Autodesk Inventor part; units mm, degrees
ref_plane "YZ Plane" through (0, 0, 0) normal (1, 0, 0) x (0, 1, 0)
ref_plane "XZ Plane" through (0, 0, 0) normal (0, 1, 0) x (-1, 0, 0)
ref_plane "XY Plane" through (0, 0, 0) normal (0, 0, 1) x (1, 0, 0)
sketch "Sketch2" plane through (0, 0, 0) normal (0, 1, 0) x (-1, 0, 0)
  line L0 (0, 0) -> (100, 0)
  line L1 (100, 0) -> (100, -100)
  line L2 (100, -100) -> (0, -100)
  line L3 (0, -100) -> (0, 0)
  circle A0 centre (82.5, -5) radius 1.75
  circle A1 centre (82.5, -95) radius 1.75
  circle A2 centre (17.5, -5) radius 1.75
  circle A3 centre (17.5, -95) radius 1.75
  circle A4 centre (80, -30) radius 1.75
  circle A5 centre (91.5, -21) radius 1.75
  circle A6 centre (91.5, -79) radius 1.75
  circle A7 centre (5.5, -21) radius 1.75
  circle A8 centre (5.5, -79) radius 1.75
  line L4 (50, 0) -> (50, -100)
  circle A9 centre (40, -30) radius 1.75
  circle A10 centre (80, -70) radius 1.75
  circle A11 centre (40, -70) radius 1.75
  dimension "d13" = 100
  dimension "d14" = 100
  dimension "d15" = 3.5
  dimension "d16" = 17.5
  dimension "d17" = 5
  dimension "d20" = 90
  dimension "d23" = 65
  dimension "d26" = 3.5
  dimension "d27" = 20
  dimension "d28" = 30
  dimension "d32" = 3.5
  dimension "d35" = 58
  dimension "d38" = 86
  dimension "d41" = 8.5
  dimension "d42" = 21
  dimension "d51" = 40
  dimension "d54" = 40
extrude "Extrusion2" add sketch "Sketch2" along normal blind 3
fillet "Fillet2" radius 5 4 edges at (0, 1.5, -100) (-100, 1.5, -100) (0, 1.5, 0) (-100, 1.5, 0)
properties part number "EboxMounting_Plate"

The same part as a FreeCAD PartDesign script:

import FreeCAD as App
import Part
import Sketcher


def edges_at(feature, points):
    """Names of the edges that pass closest to the given points."""
    edges = feature.Shape.Edges
    near = lambda p: min(range(len(edges)), key=lambda i: edges[i].distToShape(Part.Vertex(*p))[0])
    return sorted({f"Edge{near(p) + 1}" for p in points})


def add_polygon(sketch, points):
    """Adds a closed chain of lines whose ends are joined by coincident constraints."""
    first, n = sketch.GeometryCount, len(points)
    for a, b in zip(points, points[1:] + points[:1]):
        sketch.addGeometry(Part.LineSegment(App.Vector(*a, 0), App.Vector(*b, 0)), False)
    for i in range(n):
        sketch.addConstraint(Sketcher.Constraint("Coincident", first + i, 2, first + (i + 1) % n, 1))

doc = App.newDocument("Part")
body = doc.addObject("PartDesign::Body", "Body")

# Sketch on XZ plane
sketch1 = body.newObject("Sketcher::SketchObject", "Sketch")
sketch1.AttachmentSupport = (doc.getObject("XZ_Plane"), [""])
sketch1.MapMode = "FlatFace"
add_polygon(sketch1, [(0, 0), (0, -100), (-100, -100), (-100, 0)])  # lines 0-3
sketch1.addGeometry(Part.Circle(App.Vector(-17.5, -95, 0), App.Vector(0, 0, 1), 1.8), False)  # 4
sketch1.addGeometry(Part.Circle(App.Vector(-5.5, -79, 0), App.Vector(0, 0, 1), 1.8), False)  # 5
sketch1.addGeometry(Part.Circle(App.Vector(-40, -70, 0), App.Vector(0, 0, 1), 1.8), False)  # 6
sketch1.addGeometry(Part.Circle(App.Vector(-40, -30, 0), App.Vector(0, 0, 1), 1.8), False)  # 7
sketch1.addGeometry(Part.Circle(App.Vector(-5.5, -21, 0), App.Vector(0, 0, 1), 1.8), False)  # 8
sketch1.addGeometry(Part.Circle(App.Vector(-17.5, -5, 0), App.Vector(0, 0, 1), 1.8), False)  # 9
sketch1.addGeometry(Part.Circle(App.Vector(-82.5, -5, 0), App.Vector(0, 0, 1), 1.8), False)  # 10
sketch1.addGeometry(Part.Circle(App.Vector(-82.5, -95, 0), App.Vector(0, 0, 1), 1.8), False)  # 11
sketch1.addGeometry(Part.Circle(App.Vector(-91.5, -79, 0), App.Vector(0, 0, 1), 1.8), False)  # 12
sketch1.addGeometry(Part.Circle(App.Vector(-80, -70, 0), App.Vector(0, 0, 1), 1.8), False)  # 13
sketch1.addGeometry(Part.Circle(App.Vector(-80, -30, 0), App.Vector(0, 0, 1), 1.8), False)  # 14
sketch1.addGeometry(Part.Circle(App.Vector(-91.5, -21, 0), App.Vector(0, 0, 1), 1.8), False)  # 15
sketch1.addConstraint(Sketcher.Constraint("Vertical", 0))
sketch1.addConstraint(Sketcher.Constraint("Horizontal", 1))
sketch1.addConstraint(Sketcher.Constraint("Vertical", 2))
sketch1.addConstraint(Sketcher.Constraint("Horizontal", 3))
sketch1.addConstraint(Sketcher.Constraint("Coincident", 3, 2, -1, 1))
sketch1.addConstraint(Sketcher.Constraint("Equal", 4, 5))
sketch1.addConstraint(Sketcher.Constraint("Equal", 5, 6))
sketch1.addConstraint(Sketcher.Constraint("Equal", 6, 7))
sketch1.addConstraint(Sketcher.Constraint("Equal", 7, 8))
sketch1.addConstraint(Sketcher.Constraint("Equal", 8, 9))
sketch1.addConstraint(Sketcher.Constraint("Equal", 9, 10))
sketch1.addConstraint(Sketcher.Constraint("Equal", 10, 11))
sketch1.addConstraint(Sketcher.Constraint("Equal", 11, 12))
sketch1.addConstraint(Sketcher.Constraint("Equal", 12, 13))
sketch1.addConstraint(Sketcher.Constraint("Equal", 13, 14))
sketch1.addConstraint(Sketcher.Constraint("Equal", 14, 15))
sketch1.addConstraint(Sketcher.Constraint("Horizontal", 9, 3, 10, 3))
sketch1.addConstraint(Sketcher.Constraint("Horizontal", 4, 3, 11, 3))
sketch1.addConstraint(Sketcher.Constraint("Horizontal", 5, 3, 12, 3))
sketch1.addConstraint(Sketcher.Constraint("Horizontal", 6, 3, 13, 3))
sketch1.addConstraint(Sketcher.Constraint("Horizontal", 7, 3, 14, 3))
sketch1.addConstraint(Sketcher.Constraint("Horizontal", 8, 3, 15, 3))
sketch1.addConstraint(Sketcher.Constraint("Vertical", 6, 3, 7, 3))
sketch1.addConstraint(Sketcher.Constraint("Vertical", 5, 3, 8, 3))
sketch1.addConstraint(Sketcher.Constraint("Vertical", 4, 3, 9, 3))
sketch1.addConstraint(Sketcher.Constraint("Vertical", 10, 3, 11, 3))
sketch1.addConstraint(Sketcher.Constraint("Vertical", 13, 3, 14, 3))
sketch1.addConstraint(Sketcher.Constraint("Vertical", 12, 3, 15, 3))
sketch1.addConstraint(Sketcher.Constraint("Equal", 3, 0))
sketch1.addConstraint(Sketcher.Constraint("Diameter", 4, 3.5))
sketch1.addConstraint(Sketcher.Constraint("DistanceX", 1, 2, 1, 1, 100.0))
sketch1.addConstraint(Sketcher.Constraint("DistanceX", 6, 3, -1, 1, 40.0))
sketch1.addConstraint(Sketcher.Constraint("DistanceY", 7, 3, -1, 1, 30.0))
sketch1.addConstraint(Sketcher.Constraint("DistanceY", 8, 3, -1, 1, 21.0))
sketch1.addConstraint(Sketcher.Constraint("DistanceY", 9, 3, -1, 1, 5.0))
sketch1.addConstraint(Sketcher.Constraint("DistanceY", 6, 3, 7, 3, 40.0))
sketch1.addConstraint(Sketcher.Constraint("DistanceY", 4, 3, 7, 3, 65.0))
sketch1.addConstraint(Sketcher.Constraint("DistanceY", 5, 3, 8, 3, 58.0))
sketch1.addConstraint(Sketcher.Constraint("DistanceX", 10, 3, 9, 3, 65.0))
sketch1.addConstraint(Sketcher.Constraint("DistanceX", 13, 3, 6, 3, 40.0))
sketch1.addConstraint(Sketcher.Constraint("DistanceX", 4, 3, -1, 1, 17.5))
sketch1.addConstraint(Sketcher.Constraint("DistanceX", 1, 2, 12, 3, 8.5))
sketch1.addConstraint(Sketcher.Constraint("DistanceX", 4, 3, 5, 3, 12.0))
pad1 = body.newObject("PartDesign::Pad", "Pad")
pad1.Profile = sketch1
pad1.Length = 3
pad1.Reversed = True
doc.recompute()

fillet = body.newObject("PartDesign::Fillet", "Fillet")
fillet.Base = (pad1, edges_at(pad1, [
    (0, 1.5, -100),
    (-100, 1.5, -100),
    (0, 1.5, 0),
    (-100, 1.5, 0),
]))
fillet.Radius = 5

doc.recompute()
